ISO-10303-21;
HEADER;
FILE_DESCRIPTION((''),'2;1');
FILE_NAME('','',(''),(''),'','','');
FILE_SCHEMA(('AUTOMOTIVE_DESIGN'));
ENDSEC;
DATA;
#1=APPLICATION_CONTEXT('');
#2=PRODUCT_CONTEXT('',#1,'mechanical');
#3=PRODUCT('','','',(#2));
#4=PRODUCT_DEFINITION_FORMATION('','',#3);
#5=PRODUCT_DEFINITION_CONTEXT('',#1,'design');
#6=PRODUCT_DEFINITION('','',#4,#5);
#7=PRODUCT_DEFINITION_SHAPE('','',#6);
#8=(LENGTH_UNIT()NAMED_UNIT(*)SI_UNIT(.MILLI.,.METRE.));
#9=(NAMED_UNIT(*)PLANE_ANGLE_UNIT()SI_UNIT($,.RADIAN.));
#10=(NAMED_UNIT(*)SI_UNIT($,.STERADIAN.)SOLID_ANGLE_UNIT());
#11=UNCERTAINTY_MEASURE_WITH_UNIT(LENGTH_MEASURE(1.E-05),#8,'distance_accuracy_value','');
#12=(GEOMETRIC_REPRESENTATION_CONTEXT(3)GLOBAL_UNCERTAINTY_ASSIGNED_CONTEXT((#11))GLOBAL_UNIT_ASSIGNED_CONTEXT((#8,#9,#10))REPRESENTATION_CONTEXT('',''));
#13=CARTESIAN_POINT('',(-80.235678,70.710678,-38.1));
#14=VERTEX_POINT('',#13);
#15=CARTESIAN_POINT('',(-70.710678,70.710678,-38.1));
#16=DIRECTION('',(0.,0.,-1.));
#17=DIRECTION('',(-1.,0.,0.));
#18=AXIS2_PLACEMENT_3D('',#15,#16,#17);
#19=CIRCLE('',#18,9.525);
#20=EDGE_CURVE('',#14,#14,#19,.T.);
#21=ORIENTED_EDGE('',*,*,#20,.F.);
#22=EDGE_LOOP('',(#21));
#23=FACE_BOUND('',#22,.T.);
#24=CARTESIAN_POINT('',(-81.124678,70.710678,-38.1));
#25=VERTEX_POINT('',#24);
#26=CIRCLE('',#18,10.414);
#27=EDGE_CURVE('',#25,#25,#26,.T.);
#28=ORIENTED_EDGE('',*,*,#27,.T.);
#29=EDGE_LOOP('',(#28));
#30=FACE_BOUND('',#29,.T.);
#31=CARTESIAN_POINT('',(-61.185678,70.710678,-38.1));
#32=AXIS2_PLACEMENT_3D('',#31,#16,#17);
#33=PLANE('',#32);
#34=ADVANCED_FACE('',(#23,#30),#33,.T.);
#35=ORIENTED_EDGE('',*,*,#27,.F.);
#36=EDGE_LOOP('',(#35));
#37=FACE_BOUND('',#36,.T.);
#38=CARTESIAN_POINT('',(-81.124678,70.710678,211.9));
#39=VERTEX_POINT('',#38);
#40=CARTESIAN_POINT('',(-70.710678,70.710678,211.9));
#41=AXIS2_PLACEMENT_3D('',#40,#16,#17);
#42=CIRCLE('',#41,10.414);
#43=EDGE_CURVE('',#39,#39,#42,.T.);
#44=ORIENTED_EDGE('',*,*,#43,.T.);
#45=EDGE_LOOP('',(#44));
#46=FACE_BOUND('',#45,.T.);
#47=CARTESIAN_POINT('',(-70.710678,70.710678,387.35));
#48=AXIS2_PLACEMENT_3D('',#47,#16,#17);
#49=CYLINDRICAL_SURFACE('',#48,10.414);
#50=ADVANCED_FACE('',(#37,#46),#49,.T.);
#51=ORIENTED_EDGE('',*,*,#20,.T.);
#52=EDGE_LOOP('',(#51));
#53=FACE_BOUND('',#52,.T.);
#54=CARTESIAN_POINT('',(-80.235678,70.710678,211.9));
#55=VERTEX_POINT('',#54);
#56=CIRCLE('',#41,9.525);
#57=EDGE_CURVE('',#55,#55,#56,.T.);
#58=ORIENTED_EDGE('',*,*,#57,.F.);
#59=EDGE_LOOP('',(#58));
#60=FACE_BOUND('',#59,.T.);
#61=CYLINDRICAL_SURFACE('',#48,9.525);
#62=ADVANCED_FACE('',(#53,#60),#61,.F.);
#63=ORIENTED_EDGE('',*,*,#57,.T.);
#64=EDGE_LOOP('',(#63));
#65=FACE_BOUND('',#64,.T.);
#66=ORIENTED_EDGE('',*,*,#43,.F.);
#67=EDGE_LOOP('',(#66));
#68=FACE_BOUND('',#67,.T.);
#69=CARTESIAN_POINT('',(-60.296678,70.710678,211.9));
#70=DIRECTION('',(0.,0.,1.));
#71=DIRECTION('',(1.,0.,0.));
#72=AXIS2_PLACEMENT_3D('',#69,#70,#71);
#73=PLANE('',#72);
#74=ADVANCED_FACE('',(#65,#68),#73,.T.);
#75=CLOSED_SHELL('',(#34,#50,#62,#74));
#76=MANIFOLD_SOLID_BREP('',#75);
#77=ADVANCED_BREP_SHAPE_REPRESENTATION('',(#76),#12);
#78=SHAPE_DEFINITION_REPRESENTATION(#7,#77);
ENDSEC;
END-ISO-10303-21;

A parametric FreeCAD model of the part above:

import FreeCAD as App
import Part
import Sketcher
from FreeCAD import Vector

doc = App.newDocument("Part")
body = doc.addObject("PartDesign::Body", "Body")

sketch1 = body.newObject("Sketcher::SketchObject", "Sketch")
sketch1.AttachmentSupport = (doc.getObject("XZ_Plane"), [""])
sketch1.MapMode = "FlatFace"
sketch1.AttachmentOffset = App.Placement(Vector(0, 0, -70.710678), App.Rotation())
sketch1.addGeometry(Part.LineSegment(Vector(-61.2, 211.9, 0), Vector(-61.2, -38.1, 0)), False)
sketch1.addGeometry(Part.LineSegment(Vector(-61.2, -38.1, 0), Vector(-60.3, -38.1, 0)), False)
sketch1.addGeometry(Part.LineSegment(Vector(-60.3, -38.1, 0), Vector(-60.3, 211.9, 0)), False)
sketch1.addGeometry(Part.LineSegment(Vector(-60.3, 211.9, 0), Vector(-61.2, 211.9, 0)), False)
sketch1.addGeometry(Part.LineSegment(Vector(-70.7, 211.9, 0), Vector(-70.7, -38.1, 0)), True)
sketch1.addConstraint(Sketcher.Constraint("Coincident", 0, 2, 1, 1))
sketch1.addConstraint(Sketcher.Constraint("Coincident", 1, 2, 2, 1))
sketch1.addConstraint(Sketcher.Constraint("Coincident", 2, 2, 3, 1))
sketch1.addConstraint(Sketcher.Constraint("Coincident", 3, 2, 0, 1))
sketch1.addConstraint(Sketcher.Constraint("Vertical", 0))
sketch1.addConstraint(Sketcher.Constraint("Horizontal", 1))
sketch1.addConstraint(Sketcher.Constraint("Vertical", 2))
sketch1.addConstraint(Sketcher.Constraint("Horizontal", 3))
sketch1.addConstraint(Sketcher.Constraint("Vertical", 4))
sketch1.addConstraint(Sketcher.Constraint("Horizontal", 3, 2, 4, 1))
sketch1.addConstraint(Sketcher.Constraint("Horizontal", 1, 2, 4, 2))
sketch1.addConstraint(Sketcher.Constraint("DistanceY", 0, 2, 0, 1, 250.0))
sketch1.addConstraint(Sketcher.Constraint("DistanceY", 0, 2, -1, 1, 38.1))
sketch1.addConstraint(Sketcher.Constraint("DistanceX", 1, 1, 1, 2, 0.889))
sketch1.addConstraint(Sketcher.Constraint("DistanceX", 4, 1, 3, 2, 9.525))
sketch1.addConstraint(Sketcher.Constraint("DistanceX", 0, 2, -1, 1, 61.185678))
revolution = body.newObject("PartDesign::Revolution", "Revolution")
revolution.Profile = sketch1
revolution.ReferenceAxis = (sketch1, ["Axis0"])
revolution.Angle = 360

doc.recompute()
